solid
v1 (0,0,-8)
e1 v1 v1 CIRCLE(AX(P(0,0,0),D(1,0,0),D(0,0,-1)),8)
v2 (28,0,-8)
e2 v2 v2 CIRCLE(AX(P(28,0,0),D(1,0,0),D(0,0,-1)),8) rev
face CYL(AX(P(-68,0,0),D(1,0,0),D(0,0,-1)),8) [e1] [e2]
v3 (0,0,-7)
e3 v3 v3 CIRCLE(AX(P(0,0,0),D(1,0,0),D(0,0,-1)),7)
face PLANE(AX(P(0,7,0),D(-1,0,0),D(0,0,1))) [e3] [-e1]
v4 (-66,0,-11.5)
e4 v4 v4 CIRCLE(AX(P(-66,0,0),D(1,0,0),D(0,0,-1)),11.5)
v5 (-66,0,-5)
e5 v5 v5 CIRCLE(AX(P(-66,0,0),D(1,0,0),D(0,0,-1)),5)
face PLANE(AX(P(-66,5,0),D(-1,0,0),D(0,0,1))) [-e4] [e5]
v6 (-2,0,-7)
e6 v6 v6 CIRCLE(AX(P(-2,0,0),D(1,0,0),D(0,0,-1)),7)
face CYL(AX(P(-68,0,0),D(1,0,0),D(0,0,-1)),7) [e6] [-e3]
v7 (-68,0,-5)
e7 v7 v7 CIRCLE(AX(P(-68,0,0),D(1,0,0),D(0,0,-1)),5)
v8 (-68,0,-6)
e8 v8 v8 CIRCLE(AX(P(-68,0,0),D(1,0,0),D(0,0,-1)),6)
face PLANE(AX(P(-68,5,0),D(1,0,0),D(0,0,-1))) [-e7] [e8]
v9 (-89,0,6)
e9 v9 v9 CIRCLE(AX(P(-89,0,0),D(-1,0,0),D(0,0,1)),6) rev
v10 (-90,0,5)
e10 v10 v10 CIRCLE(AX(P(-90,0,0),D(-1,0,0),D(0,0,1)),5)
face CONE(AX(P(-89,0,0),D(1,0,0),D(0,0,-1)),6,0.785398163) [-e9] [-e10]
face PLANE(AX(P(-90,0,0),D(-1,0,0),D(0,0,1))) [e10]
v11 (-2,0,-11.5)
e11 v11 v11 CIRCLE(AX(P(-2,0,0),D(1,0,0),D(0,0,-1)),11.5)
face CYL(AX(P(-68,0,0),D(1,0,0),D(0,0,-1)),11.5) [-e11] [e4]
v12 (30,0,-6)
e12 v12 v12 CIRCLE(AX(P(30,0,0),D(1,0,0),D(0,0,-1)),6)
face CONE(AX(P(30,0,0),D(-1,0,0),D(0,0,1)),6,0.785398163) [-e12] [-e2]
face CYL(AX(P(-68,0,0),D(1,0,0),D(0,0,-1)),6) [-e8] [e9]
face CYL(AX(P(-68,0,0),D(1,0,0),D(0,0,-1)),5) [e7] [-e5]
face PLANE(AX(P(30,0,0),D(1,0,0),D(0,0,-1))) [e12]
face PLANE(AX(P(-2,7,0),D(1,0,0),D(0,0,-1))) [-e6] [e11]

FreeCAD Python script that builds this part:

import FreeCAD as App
import Part
import Sketcher


def edges_at(feature, points):
    """Names of the edges that pass closest to the given points."""
    edges = feature.Shape.Edges
    near = lambda p: min(range(len(edges)), key=lambda i: edges[i].distToShape(Part.Vertex(*p))[0])
    return sorted({f"Edge{near(p) + 1}" for p in points})

doc = App.newDocument("Part")
params = doc.addObject("Spreadsheet::Sheet", "Params")
for row, (alias, value) in enumerate([
    ("sketch1_width", "30 mm"),
    ("sketch1_width2", "2 mm"),
    ("sketch1_width3", "64 mm"),
    ("sketch1_width4", "22 mm"),
    ("sketch1_height", "8 mm"),
    ("revolution_angle", "360 deg"),
    ("chamfer_size", "2 mm"),
    ("chamfer2_size", "1 mm"),
], start=1):
    params.set(f"A{row}", alias)
    params.set(f"B{row}", "=" + value)
    params.setAlias(f"B{row}", alias)

body = doc.addObject("PartDesign::Body", "Body")

sketch1 = body.newObject("Sketcher::SketchObject", "Sketch")
sketch1.AttachmentSupport = (doc.getObject("XY_Plane"), [""])
sketch1.MapMode = "FlatFace"
sketch1.addGeometry([
    Part.LineSegment(App.Vector(30, 0, 0), App.Vector(30, 8, 0)),
    Part.LineSegment(App.Vector(30, 8, 0), App.Vector(0, 8, 0)),
    Part.LineSegment(App.Vector(0, 8, 0), App.Vector(0, 7, 0)),
    Part.LineSegment(App.Vector(0, 7, 0), App.Vector(-2, 7, 0)),
    Part.LineSegment(App.Vector(-2, 7, 0), App.Vector(-2, 11.5, 0)),
    Part.LineSegment(App.Vector(-2, 11.5, 0), App.Vector(-66, 11.5, 0)),
    Part.LineSegment(App.Vector(-66, 11.5, 0), App.Vector(-66, 5, 0)),
    Part.LineSegment(App.Vector(-66, 5, 0), App.Vector(-68, 5, 0)),
    Part.LineSegment(App.Vector(-68, 5, 0), App.Vector(-68, 6, 0)),
    Part.LineSegment(App.Vector(-68, 6, 0), App.Vector(-90, 6, 0)),
    Part.LineSegment(App.Vector(-90, 6, 0), App.Vector(-90, 0, 0)),
    Part.LineSegment(App.Vector(-90, 0, 0), App.Vector(30, 0, 0)),
], False)
sketch1.addConstraint([
    Sketcher.Constraint("Coincident", 0, 2, 1, 1),
    Sketcher.Constraint("Coincident", 1, 2, 2, 1),
    Sketcher.Constraint("Coincident", 2, 2, 3, 1),
    Sketcher.Constraint("Coincident", 3, 2, 4, 1),
    Sketcher.Constraint("Coincident", 4, 2, 5, 1),
    Sketcher.Constraint("Coincident", 5, 2, 6, 1),
    Sketcher.Constraint("Coincident", 6, 2, 7, 1),
    Sketcher.Constraint("Coincident", 7, 2, 8, 1),
    Sketcher.Constraint("Coincident", 8, 2, 9, 1),
    Sketcher.Constraint("Coincident", 9, 2, 10, 1),
    Sketcher.Constraint("Coincident", 10, 2, 11, 1),
    Sketcher.Constraint("Coincident", 11, 2, 0, 1),
    Sketcher.Constraint("Vertical", 0),
    Sketcher.Constraint("Horizontal", 1),
    Sketcher.Constraint("Vertical", 2),
    Sketcher.Constraint("Horizontal", 3),
    Sketcher.Constraint("Vertical", 4),
    Sketcher.Constraint("Horizontal", 5),
    Sketcher.Constraint("Vertical", 6),
    Sketcher.Constraint("Horizontal", 7),
    Sketcher.Constraint("Vertical", 8),
    Sketcher.Constraint("Horizontal", 9),
    Sketcher.Constraint("Vertical", 10),
    Sketcher.Constraint("Horizontal", 11),
    Sketcher.Constraint("PointOnObject", 1, 2, -2),
    Sketcher.Constraint("PointOnObject", 10, 2, -1),
    Sketcher.Constraint("Equal", 3, 7),
    Sketcher.Constraint("Equal", 2, 8),
    Sketcher.Constraint("DistanceX", 1, 2, 1, 1, 30.0),
    Sketcher.Constraint("DistanceX", 3, 2, 3, 1, 2.0),
    Sketcher.Constraint("DistanceX", 5, 2, 5, 1, 64.0),
    Sketcher.Constraint("DistanceX", 9, 2, 9, 1, 22.0),
    Sketcher.Constraint("DistanceY", 0, 1, 0, 2, 8.0),
    Sketcher.Constraint("DistanceY", 2, 2, 2, 1, 1.0),
    Sketcher.Constraint("DistanceY", 10, 2, 10, 1, 6.0),
    Sketcher.Constraint("DistanceY", 4, 1, 4, 2, 4.5),
])
sketch1.setExpression("Constraints[28]", "Params.sketch1_width")
sketch1.setExpression("Constraints[29]", "Params.sketch1_width2")
sketch1.setExpression("Constraints[30]", "Params.sketch1_width3")
sketch1.setExpression("Constraints[31]", "Params.sketch1_width4")
sketch1.setExpression("Constraints[32]", "Params.sketch1_height")
revolution = body.newObject("PartDesign::Revolution", "Revolution")
revolution.Profile = sketch1
revolution.ReferenceAxis = (sketch1, ["H_Axis"])
revolution.setExpression("Angle", "Params.revolution_angle")
doc.recompute()

chamfer = body.newObject("PartDesign::Chamfer", "Chamfer")
chamfer.Base = (revolution, edges_at(revolution, [(30, 0, 8)]))
chamfer.setExpression("Size", "Params.chamfer_size")
doc.recompute()

chamfer2 = body.newObject("PartDesign::Chamfer", "Chamfer001")
chamfer2.Base = (chamfer, edges_at(chamfer, [(-90, 0, 6)]))
chamfer2.setExpression("Size", "Params.chamfer2_size")

doc.recompute()
